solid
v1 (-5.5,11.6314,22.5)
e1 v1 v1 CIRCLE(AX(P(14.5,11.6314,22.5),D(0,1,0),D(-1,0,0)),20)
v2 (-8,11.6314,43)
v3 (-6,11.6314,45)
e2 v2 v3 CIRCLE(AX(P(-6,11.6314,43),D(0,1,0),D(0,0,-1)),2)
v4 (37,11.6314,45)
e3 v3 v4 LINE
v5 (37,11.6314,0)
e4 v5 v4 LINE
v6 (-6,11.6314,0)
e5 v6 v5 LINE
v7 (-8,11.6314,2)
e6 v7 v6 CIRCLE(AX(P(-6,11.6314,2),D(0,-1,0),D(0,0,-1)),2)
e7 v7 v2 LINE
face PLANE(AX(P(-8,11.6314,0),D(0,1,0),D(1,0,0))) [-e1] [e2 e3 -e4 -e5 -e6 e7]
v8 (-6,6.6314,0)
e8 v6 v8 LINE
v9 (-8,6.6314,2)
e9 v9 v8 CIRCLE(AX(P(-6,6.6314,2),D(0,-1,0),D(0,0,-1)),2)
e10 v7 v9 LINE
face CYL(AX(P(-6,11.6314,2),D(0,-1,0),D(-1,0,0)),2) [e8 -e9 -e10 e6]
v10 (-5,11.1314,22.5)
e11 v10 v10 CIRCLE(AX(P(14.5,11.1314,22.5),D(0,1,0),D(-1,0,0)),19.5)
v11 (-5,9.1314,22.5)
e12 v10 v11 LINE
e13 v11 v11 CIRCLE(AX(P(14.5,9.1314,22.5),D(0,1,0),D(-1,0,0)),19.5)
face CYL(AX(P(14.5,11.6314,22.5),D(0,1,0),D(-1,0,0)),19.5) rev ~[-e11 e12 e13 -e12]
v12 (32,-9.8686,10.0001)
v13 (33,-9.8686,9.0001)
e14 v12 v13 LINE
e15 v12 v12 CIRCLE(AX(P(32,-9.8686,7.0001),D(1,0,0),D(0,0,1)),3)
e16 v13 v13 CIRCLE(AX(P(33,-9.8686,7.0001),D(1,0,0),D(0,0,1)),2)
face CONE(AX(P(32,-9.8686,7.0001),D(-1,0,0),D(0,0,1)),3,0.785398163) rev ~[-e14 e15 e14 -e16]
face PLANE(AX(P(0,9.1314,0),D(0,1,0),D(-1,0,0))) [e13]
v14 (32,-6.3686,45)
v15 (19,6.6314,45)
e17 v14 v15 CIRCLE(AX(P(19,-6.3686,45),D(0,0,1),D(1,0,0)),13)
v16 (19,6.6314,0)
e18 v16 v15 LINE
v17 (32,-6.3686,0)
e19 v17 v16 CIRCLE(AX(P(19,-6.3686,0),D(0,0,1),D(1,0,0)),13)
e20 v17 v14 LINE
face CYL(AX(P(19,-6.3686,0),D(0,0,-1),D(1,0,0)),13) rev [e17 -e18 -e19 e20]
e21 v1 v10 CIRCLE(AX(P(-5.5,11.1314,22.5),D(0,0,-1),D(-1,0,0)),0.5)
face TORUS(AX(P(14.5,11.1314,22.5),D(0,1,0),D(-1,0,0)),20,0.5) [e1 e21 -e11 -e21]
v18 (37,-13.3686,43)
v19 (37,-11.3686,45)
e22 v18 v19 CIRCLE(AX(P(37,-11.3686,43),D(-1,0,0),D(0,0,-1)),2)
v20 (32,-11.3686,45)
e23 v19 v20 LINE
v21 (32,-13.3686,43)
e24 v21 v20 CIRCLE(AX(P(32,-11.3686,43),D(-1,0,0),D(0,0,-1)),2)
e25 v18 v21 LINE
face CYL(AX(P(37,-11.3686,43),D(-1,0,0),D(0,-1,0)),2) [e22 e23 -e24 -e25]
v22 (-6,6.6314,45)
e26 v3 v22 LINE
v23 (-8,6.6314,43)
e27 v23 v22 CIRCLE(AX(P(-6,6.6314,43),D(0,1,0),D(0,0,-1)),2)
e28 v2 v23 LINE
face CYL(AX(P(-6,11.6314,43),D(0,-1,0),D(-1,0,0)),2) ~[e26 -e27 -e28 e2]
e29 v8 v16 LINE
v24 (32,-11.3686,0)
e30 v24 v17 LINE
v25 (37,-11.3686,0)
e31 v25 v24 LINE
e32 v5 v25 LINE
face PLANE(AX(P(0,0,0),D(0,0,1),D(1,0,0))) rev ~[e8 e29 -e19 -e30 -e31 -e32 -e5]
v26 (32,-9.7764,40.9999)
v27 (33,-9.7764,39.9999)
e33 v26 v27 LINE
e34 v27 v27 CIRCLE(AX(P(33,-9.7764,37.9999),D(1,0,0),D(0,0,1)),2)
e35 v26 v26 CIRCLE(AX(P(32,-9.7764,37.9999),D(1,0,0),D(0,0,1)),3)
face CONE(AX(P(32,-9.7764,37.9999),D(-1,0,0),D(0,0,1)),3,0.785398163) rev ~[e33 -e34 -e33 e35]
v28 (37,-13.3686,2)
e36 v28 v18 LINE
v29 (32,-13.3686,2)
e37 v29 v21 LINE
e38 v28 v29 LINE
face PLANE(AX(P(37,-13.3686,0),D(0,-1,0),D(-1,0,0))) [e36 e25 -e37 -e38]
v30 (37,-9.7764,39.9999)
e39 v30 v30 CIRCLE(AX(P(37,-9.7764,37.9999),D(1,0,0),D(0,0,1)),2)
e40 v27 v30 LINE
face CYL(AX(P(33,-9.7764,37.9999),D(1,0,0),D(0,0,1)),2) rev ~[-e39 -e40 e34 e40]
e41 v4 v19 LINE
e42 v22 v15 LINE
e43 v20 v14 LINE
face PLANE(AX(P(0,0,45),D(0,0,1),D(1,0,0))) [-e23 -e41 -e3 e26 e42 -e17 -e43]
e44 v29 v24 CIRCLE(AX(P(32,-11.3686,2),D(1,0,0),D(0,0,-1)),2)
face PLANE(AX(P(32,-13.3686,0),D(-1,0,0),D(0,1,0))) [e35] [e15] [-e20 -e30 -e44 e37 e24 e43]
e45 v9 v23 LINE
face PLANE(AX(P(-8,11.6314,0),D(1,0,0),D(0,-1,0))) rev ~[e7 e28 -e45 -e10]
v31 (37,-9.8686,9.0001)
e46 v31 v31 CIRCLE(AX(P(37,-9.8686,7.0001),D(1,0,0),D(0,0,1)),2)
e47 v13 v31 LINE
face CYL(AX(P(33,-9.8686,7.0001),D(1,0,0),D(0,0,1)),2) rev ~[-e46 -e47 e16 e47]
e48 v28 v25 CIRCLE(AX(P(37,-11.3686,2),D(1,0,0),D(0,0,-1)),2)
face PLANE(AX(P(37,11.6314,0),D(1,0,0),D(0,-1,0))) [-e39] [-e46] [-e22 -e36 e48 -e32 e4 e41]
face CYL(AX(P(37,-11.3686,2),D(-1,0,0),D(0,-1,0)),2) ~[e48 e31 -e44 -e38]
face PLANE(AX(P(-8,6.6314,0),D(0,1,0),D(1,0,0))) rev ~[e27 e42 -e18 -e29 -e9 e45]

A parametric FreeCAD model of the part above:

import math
import FreeCAD as App
import Part
import Sketcher
from FreeCAD import Vector


def edges_at(feature, points):
    """Names of the edges that pass closest to the given points."""
    edges = feature.Shape.Edges
    near = lambda p: min(range(len(edges)), key=lambda i: edges[i].distToShape(Part.Vertex(*p))[0])
    return sorted({f"Edge{near(p) + 1}" for p in points})

doc = App.newDocument("Part")
params = doc.addObject("Spreadsheet::Sheet", "Params")
for row, (alias, value) in enumerate([
    ("sketch1_radius", "13 mm"),
    ("sketch1_width", "45 mm"),
    ("sketch1_width2", "5 mm"),
    ("sketch1_height", "25 mm"),
    ("pad1_length", "45 mm"),
    ("fillet_radius", "2 mm"),
    ("sketch2_diameter", "4 mm"),
    ("hole_diameter", "4 mm"),
    ("hole_depth", "11 mm"),
    ("hole_csink_diameter", "6 mm"),
    ("sketch3_diameter", "39 mm"),
    ("pocket1_length", "2.5 mm"),
    ("fillet2_radius", "0.5 mm"),
], start=1):
    params.set(f"A{row}", alias)
    params.set(f"B{row}", "=" + value)
    params.setAlias(f"B{row}", alias)

body = doc.addObject("PartDesign::Body", "Body")

# Sketch on XY plane
sketch1 = body.newObject("Sketcher::SketchObject", "Sketch")
sketch1.AttachmentSupport = (doc.getObject("XY_Plane"), [""])
sketch1.MapMode = "FlatFace"
sketch1.addGeometry([
    Part.LineSegment(Vector(37, 11.6, 0), Vector(-8, 11.6, 0)),  # 0
    Part.LineSegment(Vector(-8, 11.6, 0), Vector(-8, 6.6, 0)),  # 1
    Part.LineSegment(Vector(-8, 6.6, 0), Vector(19, 6.6, 0)),  # 2
    Part.ArcOfCircle(Part.Circle(Vector(19, -6.4, 0), Vector(0, 0, 1), 13), math.radians(0), math.radians(90)),  # 3
    Part.LineSegment(Vector(32, -6.4, 0), Vector(32, -13.4, 0)),  # 4
    Part.LineSegment(Vector(32, -13.4, 0), Vector(37, -13.4, 0)),  # 5
    Part.LineSegment(Vector(37, -13.4, 0), Vector(37, 11.6, 0)),  # 6
], False)
sketch1.addConstraint([
    Sketcher.Constraint("Coincident", 0, 2, 1, 1),
    Sketcher.Constraint("Coincident", 1, 2, 2, 1),
    Sketcher.Constraint("Tangent", 2, 2, 3, 2),
    Sketcher.Constraint("Tangent", 3, 1, 4, 1),
    Sketcher.Constraint("Coincident", 4, 2, 5, 1),
    Sketcher.Constraint("Coincident", 5, 2, 6, 1),
    Sketcher.Constraint("Coincident", 6, 2, 0, 1),
    Sketcher.Constraint("Horizontal", 0),
    Sketcher.Constraint("Vertical", 1),
    Sketcher.Constraint("Horizontal", 2),
    Sketcher.Constraint("Vertical", 4),
    Sketcher.Constraint("Horizontal", 5),
    Sketcher.Constraint("Vertical", 6),
    Sketcher.Constraint("Equal", 5, 1),
    Sketcher.Constraint("Radius", 3, 13.0),
    Sketcher.Constraint("DistanceX", 0, 2, 0, 1, 45.0),
    Sketcher.Constraint("DistanceX", 5, 1, 5, 2, 5.0),
    Sketcher.Constraint("DistanceY", 6, 1, 6, 2, 25.0),
    Sketcher.Constraint("DistanceX", -1, 1, 3, 3, 19.0),
    Sketcher.Constraint("DistanceY", 3, 3, -1, 1, 6.3686),
])
sketch1.setExpression("Constraints[14]", "Params.sketch1_radius")
sketch1.setExpression("Constraints[15]", "Params.sketch1_width")
sketch1.setExpression("Constraints[16]", "Params.sketch1_width2")
sketch1.setExpression("Constraints[17]", "Params.sketch1_height")
pad1 = body.newObject("PartDesign::Pad", "Pad")
pad1.Profile = sketch1
pad1.setExpression("Length", "Params.pad1_length")
doc.recompute()

fillet = body.newObject("PartDesign::Fillet", "Fillet")
fillet.Base = (pad1, edges_at(pad1, [
    (-8, 9.131, 0),
    (-8, 9.131, 45),
    (34.5, -13.369, 45),
    (34.5, -13.369, 0),
]))
fillet.setExpression("Radius", "Params.fillet_radius")

# Sketch on YZ plane
sketch2 = body.newObject("Sketcher::SketchObject", "Sketch001")
sketch2.AttachmentSupport = (doc.getObject("YZ_Plane"), [""])
sketch2.MapMode = "FlatFace"
sketch2.AttachmentOffset = App.Placement(Vector(0, 0, 32), App.Rotation())
sketch2.addGeometry([
    Part.Circle(Vector(-9.9, 7, 0), Vector(0, 0, 1), 2),
    Part.Circle(Vector(-9.8, 38, 0), Vector(0, 0, 1), 2),
], False)
sketch2.addConstraint([
    Sketcher.Constraint("Equal", 0, 1),
    Sketcher.Constraint("Diameter", 0, 4.0),
    Sketcher.Constraint("DistanceY", -1, 1, 0, 3, 7.0),
    Sketcher.Constraint("DistanceY", -1, 1, 1, 3, 38.0),
    Sketcher.Constraint("DistanceX", 0, 3, -1, 1, 9.8686),
    Sketcher.Constraint("DistanceX", 1, 3, -1, 1, 9.7764),
])
sketch2.setExpression("Constraints[1]", "Params.sketch2_diameter")
doc.recompute()
hole = body.newObject("PartDesign::Hole", "Hole")
hole.Profile = sketch2
hole.ThreadType = "None"
hole.setExpression("Diameter", "Params.hole_diameter")
hole.DepthType = "Dimension"
hole.setExpression("Depth", "Params.hole_depth")
hole.DrillPoint = "Angled"
hole.DrillPointAngle = 118
hole.HoleCutType = "Countersink"
hole.setExpression("HoleCutDiameter", "Params.hole_csink_diameter")
hole.HoleCutCountersinkAngle = 90
hole.Reversed = True

# Sketch on XZ plane
sketch3 = body.newObject("Sketcher::SketchObject", "Sketch002")
sketch3.AttachmentSupport = (doc.getObject("XZ_Plane"), [""])
sketch3.MapMode = "FlatFace"
sketch3.AttachmentOffset = App.Placement(Vector(0, 0, -11.6314), App.Rotation())
sketch3.addGeometry(Part.Circle(Vector(14, 22, 0), Vector(0, 0, 1), 20), False)
sketch3.addConstraint([
    Sketcher.Constraint("Diameter", 0, 39.0),
    Sketcher.Constraint("DistanceY", -1, 1, 0, 3, 22.5),
    Sketcher.Constraint("DistanceX", -1, 1, 0, 3, 14.5),
])
sketch3.setExpression("Constraints[0]", "Params.sketch3_diameter")
pocket1 = body.newObject("PartDesign::Pocket", "Pocket")
pocket1.Profile = sketch3
pocket1.setExpression("Length", "Params.pocket1_length")
pocket1.Reversed = True
doc.recompute()

fillet2 = body.newObject("PartDesign::Fillet", "Fillet001")
fillet2.Base = (pocket1, edges_at(pocket1, [(32.68, 11.631, 29.552)]))
fillet2.setExpression("Radius", "Params.fillet2_radius")

doc.recompute()
